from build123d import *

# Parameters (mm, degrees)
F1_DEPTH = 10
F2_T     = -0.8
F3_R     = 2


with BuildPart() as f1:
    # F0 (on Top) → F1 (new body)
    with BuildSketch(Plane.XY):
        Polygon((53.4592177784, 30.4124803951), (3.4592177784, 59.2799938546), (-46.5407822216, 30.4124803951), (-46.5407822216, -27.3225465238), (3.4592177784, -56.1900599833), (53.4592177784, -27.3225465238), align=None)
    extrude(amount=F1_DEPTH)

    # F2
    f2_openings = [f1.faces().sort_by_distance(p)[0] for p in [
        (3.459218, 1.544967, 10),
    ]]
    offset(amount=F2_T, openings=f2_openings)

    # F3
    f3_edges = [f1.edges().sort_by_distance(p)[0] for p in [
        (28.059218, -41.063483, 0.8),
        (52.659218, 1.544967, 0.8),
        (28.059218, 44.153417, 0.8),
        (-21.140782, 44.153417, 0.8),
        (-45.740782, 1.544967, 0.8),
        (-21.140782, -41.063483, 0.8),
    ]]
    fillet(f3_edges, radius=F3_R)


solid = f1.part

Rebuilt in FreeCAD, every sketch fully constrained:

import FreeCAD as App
import Part
import Sketcher
from FreeCAD import Vector
Q = App.Units.Quantity


def edges_at(feature, points):
    """Names of the edges that pass closest to the given points."""
    edges = feature.Shape.Edges
    near = lambda p: min(range(len(edges)), key=lambda i: edges[i].distToShape(Part.Vertex(*p))[0])
    return sorted({f"Edge{near(p) + 1}" for p in points})


def faces_at(feature, points):
    """Names of the faces that lie closest to the given points."""
    faces = feature.Shape.Faces
    near = lambda p: min(range(len(faces)), key=lambda i: faces[i].distToShape(Part.Vertex(*p))[0])
    return sorted({f"Face{near(p) + 1}" for p in points})

doc = App.newDocument("Part")
body = doc.addObject("PartDesign::Body", "Body")

# Sketch on XY plane
sketch1 = body.newObject("Sketcher::SketchObject", "Sketch")
sketch1.AttachmentSupport = (doc.getObject("XY_Plane"), [""])
sketch1.MapMode = "FlatFace"
sketch1.addGeometry([
    Part.LineSegment(Vector(53, 30, 0), Vector(3, 59, 0)),  # 0
    Part.LineSegment(Vector(3, 59, 0), Vector(-47, 30, 0)),  # 1
    Part.LineSegment(Vector(-47, 30, 0), Vector(-47, -27, 0)),  # 2
    Part.LineSegment(Vector(-47, -27, 0), Vector(3, -56, 0)),  # 3
    Part.LineSegment(Vector(3, -56, 0), Vector(53, -27, 0)),  # 4
    Part.LineSegment(Vector(53, -27, 0), Vector(53, 30, 0)),  # 5
], False)
sketch1.addConstraint([
    Sketcher.Constraint("Coincident", 0, 2, 1, 1),
    Sketcher.Constraint("Coincident", 1, 2, 2, 1),
    Sketcher.Constraint("Coincident", 2, 2, 3, 1),
    Sketcher.Constraint("Coincident", 3, 2, 4, 1),
    Sketcher.Constraint("Coincident", 4, 2, 5, 1),
    Sketcher.Constraint("Coincident", 5, 2, 0, 1),
    Sketcher.Constraint("Vertical", 2),
    Sketcher.Constraint("Vertical", 5),
    Sketcher.Constraint("Parallel", 0, 3),
    Sketcher.Constraint("Parallel", 1, 4),
    Sketcher.Constraint("Horizontal", 2, 2, 4, 2),
    Sketcher.Constraint("Horizontal", 1, 2, 5, 2),
    Sketcher.Constraint("Vertical", 0, 2, 3, 2),
    Sketcher.Constraint("Angle", 0, Q("150 deg")),
    Sketcher.Constraint("DistanceX", 1, 2, 0, 2, 50.0),
    Sketcher.Constraint("DistanceY", 2, 2, 2, 1, 57.735027),
    Sketcher.Constraint("DistanceY", -1, 1, 1, 2, 30.41248),
    Sketcher.Constraint("DistanceX", -1, 1, 0, 2, 3.459218),
])
pad1 = body.newObject("PartDesign::Pad", "Pad")
pad1.Profile = sketch1
pad1.Length = 10
doc.recompute()

thickness = body.newObject("PartDesign::Thickness", "Thickness")
thickness.Base = (pad1, faces_at(pad1, [(3.459, 1.545, 10)]))
thickness.Value = 0.8
thickness.Reversed = True
thickness.Join = "Arc"
doc.recompute()

fillet = body.newObject("PartDesign::Fillet", "Fillet")
fillet.Base = (thickness, edges_at(thickness, [
    (28.059, -41.063, 0.8),
    (52.659, 1.545, 0.8),
    (28.059, 44.153, 0.8),
    (-21.141, 44.153, 0.8),
    (-45.741, 1.545, 0.8),
    (-21.141, -41.063, 0.8),
]))
fillet.Radius = 2

doc.recompute()
